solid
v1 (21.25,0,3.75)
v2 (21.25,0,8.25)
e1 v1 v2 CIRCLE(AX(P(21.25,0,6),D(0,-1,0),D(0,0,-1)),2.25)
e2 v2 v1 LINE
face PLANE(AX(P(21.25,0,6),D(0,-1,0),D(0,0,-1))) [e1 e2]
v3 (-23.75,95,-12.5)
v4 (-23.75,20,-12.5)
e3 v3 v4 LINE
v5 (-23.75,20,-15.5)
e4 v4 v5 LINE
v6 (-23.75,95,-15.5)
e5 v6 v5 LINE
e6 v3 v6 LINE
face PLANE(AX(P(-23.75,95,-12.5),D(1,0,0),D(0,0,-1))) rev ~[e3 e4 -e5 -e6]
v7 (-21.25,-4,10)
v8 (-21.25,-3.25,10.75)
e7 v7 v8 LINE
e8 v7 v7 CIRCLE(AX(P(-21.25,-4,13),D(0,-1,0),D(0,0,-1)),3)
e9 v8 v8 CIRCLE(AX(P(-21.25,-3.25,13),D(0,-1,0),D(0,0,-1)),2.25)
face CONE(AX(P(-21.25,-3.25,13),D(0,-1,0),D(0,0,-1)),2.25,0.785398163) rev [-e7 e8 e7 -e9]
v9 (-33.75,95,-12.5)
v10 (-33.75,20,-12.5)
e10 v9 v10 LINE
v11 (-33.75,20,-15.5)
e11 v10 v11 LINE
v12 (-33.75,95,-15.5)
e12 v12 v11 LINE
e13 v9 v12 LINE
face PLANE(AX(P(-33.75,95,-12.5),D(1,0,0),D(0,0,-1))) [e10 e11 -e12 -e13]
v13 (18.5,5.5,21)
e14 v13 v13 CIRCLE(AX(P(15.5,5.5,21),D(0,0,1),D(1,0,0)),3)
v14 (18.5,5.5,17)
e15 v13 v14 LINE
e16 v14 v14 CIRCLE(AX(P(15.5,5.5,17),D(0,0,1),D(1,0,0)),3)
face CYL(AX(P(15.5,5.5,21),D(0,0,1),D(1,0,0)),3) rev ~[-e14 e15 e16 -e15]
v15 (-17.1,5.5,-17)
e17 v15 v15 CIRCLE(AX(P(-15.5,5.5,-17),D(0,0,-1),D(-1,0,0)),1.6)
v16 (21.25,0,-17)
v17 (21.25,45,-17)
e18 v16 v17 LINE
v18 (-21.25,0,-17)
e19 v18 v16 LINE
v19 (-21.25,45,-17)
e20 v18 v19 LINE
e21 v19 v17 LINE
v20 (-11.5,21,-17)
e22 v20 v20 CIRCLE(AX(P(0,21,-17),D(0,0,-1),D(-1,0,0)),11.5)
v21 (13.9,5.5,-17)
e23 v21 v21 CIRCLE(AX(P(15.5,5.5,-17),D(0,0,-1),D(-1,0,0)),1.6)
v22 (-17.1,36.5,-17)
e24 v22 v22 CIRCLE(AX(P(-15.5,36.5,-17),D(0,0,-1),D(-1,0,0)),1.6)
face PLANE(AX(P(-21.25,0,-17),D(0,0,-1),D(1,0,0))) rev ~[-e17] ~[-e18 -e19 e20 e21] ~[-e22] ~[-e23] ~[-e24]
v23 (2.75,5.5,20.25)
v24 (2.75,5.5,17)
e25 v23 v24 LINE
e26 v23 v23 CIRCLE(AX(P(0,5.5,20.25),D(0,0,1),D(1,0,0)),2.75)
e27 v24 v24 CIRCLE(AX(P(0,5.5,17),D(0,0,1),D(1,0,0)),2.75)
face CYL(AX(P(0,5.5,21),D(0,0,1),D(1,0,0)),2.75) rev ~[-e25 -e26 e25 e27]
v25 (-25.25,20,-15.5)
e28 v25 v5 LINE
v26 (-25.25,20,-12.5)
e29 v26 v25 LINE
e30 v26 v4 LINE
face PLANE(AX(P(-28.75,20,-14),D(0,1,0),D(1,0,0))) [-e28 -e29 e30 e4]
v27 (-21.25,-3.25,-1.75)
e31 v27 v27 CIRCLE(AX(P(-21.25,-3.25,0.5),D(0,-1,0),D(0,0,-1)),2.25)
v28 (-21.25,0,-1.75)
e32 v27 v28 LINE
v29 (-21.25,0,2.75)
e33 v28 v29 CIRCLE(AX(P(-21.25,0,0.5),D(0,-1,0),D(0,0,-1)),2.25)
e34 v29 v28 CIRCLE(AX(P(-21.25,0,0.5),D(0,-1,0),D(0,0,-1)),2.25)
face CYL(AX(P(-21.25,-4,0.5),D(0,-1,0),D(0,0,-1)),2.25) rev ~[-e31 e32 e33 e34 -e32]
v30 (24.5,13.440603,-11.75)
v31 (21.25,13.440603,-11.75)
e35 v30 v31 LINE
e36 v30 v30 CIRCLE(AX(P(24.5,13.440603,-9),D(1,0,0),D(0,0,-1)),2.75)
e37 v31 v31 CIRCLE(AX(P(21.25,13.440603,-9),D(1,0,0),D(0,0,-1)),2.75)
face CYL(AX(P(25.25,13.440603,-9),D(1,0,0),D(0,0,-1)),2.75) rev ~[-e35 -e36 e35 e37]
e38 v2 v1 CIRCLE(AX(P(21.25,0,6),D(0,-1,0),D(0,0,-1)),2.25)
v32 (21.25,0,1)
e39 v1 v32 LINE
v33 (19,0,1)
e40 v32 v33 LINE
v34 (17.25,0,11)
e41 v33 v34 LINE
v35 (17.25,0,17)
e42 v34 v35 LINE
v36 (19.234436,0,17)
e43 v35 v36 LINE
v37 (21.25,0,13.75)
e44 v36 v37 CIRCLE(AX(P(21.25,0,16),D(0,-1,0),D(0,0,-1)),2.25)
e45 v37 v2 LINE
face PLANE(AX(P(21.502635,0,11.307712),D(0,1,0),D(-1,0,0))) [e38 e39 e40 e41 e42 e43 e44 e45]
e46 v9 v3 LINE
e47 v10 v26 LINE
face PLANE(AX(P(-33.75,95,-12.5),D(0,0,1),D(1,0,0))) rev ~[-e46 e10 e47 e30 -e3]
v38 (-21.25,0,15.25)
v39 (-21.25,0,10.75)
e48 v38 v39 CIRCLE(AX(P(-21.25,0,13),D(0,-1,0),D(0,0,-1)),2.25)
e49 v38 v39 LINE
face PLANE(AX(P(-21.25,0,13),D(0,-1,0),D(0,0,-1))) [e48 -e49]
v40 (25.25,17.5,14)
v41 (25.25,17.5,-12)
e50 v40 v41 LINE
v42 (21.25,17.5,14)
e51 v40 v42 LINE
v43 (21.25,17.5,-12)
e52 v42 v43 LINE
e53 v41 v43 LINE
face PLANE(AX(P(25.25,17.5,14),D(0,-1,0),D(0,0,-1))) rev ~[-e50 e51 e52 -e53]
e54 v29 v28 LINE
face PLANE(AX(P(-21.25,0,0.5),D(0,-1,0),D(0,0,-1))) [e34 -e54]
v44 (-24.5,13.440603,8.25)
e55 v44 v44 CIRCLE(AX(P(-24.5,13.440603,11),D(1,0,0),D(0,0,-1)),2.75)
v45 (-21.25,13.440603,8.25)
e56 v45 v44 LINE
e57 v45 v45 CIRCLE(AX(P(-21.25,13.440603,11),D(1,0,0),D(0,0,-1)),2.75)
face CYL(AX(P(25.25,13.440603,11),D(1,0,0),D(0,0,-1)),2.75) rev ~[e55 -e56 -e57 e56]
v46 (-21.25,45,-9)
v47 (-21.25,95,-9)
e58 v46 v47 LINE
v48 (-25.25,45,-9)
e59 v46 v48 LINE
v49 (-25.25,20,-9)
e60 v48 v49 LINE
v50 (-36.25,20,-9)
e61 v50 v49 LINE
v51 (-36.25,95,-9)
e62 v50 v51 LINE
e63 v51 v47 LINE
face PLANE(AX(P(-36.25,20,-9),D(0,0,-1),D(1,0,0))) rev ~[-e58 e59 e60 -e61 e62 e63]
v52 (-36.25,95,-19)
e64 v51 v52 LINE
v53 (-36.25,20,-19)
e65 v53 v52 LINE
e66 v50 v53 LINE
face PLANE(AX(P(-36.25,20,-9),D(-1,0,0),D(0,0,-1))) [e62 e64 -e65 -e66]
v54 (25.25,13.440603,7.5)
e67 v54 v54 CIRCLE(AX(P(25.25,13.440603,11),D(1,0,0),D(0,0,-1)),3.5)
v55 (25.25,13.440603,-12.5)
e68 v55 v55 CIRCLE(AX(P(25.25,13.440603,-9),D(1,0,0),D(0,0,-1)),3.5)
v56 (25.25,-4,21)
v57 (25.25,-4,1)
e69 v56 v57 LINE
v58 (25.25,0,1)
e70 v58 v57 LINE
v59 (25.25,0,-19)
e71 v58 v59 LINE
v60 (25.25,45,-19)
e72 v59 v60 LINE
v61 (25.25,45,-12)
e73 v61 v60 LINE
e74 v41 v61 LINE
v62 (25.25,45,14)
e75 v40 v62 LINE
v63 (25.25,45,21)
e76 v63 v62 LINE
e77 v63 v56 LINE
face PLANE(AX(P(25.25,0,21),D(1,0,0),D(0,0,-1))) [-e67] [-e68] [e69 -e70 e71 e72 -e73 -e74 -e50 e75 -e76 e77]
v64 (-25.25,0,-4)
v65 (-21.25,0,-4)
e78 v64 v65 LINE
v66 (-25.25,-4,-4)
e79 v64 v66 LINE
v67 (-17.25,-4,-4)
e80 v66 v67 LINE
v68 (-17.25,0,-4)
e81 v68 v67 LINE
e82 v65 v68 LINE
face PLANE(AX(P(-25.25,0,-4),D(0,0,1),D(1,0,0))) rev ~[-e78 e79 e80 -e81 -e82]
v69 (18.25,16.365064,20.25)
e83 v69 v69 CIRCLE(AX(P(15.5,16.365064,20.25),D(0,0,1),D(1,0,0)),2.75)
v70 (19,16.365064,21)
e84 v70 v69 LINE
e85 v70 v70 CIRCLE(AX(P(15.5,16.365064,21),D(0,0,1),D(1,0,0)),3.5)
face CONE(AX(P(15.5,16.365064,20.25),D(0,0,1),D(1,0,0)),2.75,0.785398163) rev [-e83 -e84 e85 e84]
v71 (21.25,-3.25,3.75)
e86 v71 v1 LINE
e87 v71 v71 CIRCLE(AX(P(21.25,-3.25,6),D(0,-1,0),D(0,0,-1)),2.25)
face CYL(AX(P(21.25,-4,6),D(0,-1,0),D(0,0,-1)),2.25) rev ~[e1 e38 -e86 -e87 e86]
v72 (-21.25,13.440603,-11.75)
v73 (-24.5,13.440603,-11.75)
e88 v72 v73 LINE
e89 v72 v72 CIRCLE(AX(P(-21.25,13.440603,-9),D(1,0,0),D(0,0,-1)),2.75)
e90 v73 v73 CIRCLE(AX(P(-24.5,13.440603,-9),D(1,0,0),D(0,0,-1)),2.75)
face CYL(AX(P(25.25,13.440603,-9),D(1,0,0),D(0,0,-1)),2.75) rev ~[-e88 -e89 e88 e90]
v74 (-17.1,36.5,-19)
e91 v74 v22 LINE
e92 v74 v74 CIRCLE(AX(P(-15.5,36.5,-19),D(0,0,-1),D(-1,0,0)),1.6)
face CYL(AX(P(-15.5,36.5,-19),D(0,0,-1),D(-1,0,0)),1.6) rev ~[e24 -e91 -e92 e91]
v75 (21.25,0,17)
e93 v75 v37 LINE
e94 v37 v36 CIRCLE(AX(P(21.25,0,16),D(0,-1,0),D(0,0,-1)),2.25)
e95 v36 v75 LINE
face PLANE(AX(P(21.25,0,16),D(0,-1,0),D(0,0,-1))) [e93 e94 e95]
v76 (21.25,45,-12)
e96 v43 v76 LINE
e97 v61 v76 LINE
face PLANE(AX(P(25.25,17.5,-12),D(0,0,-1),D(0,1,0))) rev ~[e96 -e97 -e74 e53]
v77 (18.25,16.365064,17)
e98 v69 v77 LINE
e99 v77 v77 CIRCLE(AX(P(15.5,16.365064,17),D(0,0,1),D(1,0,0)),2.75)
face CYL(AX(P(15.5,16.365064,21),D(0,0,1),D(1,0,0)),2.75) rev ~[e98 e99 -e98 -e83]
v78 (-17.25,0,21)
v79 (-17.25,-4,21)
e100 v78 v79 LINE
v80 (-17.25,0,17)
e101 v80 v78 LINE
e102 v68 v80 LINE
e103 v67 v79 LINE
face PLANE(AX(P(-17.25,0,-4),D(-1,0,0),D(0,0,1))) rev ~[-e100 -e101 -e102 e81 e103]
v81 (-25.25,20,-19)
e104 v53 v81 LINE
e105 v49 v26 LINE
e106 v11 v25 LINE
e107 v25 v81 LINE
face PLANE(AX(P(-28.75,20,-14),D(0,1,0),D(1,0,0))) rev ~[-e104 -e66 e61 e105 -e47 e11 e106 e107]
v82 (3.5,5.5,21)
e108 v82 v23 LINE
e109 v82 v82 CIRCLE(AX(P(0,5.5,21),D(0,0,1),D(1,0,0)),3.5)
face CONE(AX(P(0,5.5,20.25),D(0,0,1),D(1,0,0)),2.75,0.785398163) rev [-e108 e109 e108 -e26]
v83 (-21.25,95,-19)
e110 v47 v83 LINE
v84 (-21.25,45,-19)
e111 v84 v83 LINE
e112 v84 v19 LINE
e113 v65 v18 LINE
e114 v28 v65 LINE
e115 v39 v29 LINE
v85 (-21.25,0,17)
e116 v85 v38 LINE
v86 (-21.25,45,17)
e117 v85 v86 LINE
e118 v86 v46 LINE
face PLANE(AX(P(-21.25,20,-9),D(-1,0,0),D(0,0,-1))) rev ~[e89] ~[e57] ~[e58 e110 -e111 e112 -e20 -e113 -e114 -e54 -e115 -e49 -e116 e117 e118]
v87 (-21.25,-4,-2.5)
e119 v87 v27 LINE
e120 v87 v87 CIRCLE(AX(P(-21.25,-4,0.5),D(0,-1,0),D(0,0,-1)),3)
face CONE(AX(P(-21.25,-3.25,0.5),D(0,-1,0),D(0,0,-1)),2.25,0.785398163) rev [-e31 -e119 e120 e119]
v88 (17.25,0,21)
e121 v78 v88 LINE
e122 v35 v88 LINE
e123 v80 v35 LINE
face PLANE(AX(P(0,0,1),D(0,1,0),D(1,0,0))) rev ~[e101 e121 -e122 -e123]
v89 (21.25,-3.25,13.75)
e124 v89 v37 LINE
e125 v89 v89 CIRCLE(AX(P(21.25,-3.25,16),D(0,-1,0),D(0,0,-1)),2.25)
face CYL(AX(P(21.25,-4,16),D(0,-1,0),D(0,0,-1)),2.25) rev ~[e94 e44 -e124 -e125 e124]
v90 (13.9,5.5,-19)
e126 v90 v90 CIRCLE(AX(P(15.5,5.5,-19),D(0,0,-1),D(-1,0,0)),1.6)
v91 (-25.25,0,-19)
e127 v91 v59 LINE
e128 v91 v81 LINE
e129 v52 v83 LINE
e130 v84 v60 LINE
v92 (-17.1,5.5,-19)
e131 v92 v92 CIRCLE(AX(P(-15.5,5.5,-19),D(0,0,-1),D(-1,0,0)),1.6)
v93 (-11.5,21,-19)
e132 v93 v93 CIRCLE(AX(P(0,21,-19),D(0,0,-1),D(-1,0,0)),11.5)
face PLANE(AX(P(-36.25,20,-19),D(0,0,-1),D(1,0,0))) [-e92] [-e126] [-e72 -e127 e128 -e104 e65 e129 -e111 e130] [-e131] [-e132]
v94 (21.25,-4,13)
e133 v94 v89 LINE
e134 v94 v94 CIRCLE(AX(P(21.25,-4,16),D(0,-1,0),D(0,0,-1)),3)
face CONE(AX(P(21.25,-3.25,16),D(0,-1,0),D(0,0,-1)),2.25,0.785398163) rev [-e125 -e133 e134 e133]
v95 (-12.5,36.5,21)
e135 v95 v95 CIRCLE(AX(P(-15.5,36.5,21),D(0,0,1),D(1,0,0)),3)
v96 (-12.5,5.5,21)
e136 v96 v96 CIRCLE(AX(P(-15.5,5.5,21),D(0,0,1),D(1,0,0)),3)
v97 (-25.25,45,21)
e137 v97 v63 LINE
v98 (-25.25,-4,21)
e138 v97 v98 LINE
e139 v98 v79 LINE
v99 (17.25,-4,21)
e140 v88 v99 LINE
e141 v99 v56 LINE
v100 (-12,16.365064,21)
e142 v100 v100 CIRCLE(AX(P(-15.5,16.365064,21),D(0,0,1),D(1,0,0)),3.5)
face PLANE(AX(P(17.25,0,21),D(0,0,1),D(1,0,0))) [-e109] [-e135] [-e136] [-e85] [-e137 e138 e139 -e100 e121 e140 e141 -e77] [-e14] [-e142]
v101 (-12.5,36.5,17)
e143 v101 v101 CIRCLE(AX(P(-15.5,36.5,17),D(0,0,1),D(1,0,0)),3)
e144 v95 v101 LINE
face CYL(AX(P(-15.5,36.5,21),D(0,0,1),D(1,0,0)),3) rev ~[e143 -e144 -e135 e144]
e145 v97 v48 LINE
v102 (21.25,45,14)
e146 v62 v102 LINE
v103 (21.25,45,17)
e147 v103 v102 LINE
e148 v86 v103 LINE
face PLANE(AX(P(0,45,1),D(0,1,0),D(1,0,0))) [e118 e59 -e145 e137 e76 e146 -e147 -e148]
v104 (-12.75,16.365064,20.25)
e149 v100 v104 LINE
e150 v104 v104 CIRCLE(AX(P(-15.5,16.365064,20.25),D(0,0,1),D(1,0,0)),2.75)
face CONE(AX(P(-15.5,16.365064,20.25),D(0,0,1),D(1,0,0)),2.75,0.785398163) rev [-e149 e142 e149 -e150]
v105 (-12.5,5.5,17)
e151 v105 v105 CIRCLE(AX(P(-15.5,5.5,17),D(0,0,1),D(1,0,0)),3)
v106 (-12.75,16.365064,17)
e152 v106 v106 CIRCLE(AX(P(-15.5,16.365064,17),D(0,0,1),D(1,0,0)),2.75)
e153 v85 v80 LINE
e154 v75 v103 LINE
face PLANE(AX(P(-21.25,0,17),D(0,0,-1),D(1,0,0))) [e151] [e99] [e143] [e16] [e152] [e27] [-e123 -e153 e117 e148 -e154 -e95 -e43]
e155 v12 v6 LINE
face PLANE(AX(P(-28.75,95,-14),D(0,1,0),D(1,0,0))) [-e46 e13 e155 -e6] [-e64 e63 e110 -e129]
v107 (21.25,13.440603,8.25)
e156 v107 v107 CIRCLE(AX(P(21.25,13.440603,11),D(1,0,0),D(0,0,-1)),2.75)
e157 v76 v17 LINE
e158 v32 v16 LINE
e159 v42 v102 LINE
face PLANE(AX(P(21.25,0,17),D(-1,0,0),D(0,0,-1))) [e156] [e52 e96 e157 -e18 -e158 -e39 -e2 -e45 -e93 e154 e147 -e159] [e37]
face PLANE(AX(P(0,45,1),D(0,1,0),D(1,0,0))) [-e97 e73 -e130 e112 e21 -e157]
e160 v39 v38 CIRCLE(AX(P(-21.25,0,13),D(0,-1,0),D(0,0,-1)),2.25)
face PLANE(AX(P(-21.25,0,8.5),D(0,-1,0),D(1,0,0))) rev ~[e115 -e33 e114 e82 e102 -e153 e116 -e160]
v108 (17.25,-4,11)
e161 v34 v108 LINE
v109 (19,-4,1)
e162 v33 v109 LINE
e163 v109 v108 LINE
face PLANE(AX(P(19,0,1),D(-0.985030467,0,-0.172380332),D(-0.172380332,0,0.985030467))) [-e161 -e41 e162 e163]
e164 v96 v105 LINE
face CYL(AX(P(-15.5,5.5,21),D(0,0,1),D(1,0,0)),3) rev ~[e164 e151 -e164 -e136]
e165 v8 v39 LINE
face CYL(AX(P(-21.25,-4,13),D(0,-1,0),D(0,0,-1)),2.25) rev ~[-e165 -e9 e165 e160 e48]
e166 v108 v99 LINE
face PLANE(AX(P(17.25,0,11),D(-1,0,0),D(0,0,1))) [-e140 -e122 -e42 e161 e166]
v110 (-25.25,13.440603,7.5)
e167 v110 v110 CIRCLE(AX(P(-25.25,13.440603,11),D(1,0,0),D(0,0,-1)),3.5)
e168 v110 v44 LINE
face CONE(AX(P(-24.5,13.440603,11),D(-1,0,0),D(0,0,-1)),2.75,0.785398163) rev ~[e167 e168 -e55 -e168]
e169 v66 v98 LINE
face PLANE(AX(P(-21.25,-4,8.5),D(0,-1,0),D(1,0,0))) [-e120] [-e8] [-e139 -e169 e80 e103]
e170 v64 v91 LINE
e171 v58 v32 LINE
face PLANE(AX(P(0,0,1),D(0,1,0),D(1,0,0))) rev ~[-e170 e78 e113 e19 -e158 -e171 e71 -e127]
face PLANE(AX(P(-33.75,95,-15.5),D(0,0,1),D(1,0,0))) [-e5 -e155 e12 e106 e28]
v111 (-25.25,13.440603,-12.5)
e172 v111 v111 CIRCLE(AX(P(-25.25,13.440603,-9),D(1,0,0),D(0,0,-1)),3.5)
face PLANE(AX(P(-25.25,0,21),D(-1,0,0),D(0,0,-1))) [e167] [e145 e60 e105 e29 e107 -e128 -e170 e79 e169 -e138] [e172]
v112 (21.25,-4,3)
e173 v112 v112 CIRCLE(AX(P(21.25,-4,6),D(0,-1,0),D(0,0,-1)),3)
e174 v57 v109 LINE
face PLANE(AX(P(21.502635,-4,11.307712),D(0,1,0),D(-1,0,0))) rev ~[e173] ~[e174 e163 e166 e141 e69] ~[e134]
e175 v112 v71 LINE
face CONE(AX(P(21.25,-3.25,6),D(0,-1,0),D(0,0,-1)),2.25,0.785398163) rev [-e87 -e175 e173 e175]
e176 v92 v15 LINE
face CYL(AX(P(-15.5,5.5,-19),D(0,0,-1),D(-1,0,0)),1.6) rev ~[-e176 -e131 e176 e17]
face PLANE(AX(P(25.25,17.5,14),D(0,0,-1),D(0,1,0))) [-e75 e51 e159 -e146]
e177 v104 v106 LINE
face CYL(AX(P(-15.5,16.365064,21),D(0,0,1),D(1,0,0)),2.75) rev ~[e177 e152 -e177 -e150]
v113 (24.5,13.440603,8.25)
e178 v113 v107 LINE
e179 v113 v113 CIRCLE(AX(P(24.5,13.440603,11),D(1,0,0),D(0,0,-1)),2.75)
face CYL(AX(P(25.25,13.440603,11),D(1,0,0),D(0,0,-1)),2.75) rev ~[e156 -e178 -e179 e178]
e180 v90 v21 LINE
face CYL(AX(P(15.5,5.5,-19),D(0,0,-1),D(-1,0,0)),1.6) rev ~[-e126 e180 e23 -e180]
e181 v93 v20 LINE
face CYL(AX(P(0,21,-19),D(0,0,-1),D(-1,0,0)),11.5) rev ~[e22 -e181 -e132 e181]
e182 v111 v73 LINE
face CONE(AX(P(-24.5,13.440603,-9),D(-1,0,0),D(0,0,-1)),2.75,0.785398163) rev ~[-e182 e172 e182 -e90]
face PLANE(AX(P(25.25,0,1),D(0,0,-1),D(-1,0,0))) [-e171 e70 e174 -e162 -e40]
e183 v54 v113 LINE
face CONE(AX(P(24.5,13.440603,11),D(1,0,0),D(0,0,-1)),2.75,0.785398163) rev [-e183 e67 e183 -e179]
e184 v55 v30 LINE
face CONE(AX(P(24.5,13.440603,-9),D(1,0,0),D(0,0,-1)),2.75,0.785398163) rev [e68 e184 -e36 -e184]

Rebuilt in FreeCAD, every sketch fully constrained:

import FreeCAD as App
import Part
import Sketcher
from FreeCAD import Vector


def edges_at(feature, points):
    """Names of the edges that pass closest to the given points."""
    edges = feature.Shape.Edges
    near = lambda p: min(range(len(edges)), key=lambda i: edges[i].distToShape(Part.Vertex(*p))[0])
    return sorted({f"Edge{near(p) + 1}" for p in points})

doc = App.newDocument("Part")
body = doc.addObject("PartDesign::Body", "Body")

# Sketch on XZ plane
sketch1 = doc.addObject("Sketcher::SketchObject", "Sketch")
body.addObject(sketch1)
sketch1.AttachmentSupport = (doc.XZ_Plane, [""])
sketch1.MapMode = "FlatFace"
sketch1.addGeometry(Part.LineSegment(Vector(-25, -19, 0), Vector(-25, 21, 0)), False)
sketch1.addGeometry(Part.LineSegment(Vector(-25, 21, 0), Vector(25, 21, 0)), False)
sketch1.addGeometry(Part.LineSegment(Vector(25, 21, 0), Vector(25, -19, 0)), False)
sketch1.addGeometry(Part.LineSegment(Vector(25, -19, 0), Vector(-25, -19, 0)), False)
sketch1.addGeometry(Part.LineSegment(Vector(21, 17, 0), Vector(-21, 17, 0)), False)
sketch1.addGeometry(Part.LineSegment(Vector(-21, 17, 0), Vector(-21, -17, 0)), False)
sketch1.addGeometry(Part.LineSegment(Vector(-21, -17, 0), Vector(21, -17, 0)), False)
sketch1.addGeometry(Part.LineSegment(Vector(21, -17, 0), Vector(21, 17, 0)), False)
sketch1.addConstraint(Sketcher.Constraint("Coincident", 0, 2, 1, 1))
sketch1.addConstraint(Sketcher.Constraint("Coincident", 1, 2, 2, 1))
sketch1.addConstraint(Sketcher.Constraint("Coincident", 2, 2, 3, 1))
sketch1.addConstraint(Sketcher.Constraint("Coincident", 3, 2, 0, 1))
sketch1.addConstraint(Sketcher.Constraint("Coincident", 4, 2, 5, 1))
sketch1.addConstraint(Sketcher.Constraint("Coincident", 5, 2, 6, 1))
sketch1.addConstraint(Sketcher.Constraint("Coincident", 6, 2, 7, 1))
sketch1.addConstraint(Sketcher.Constraint("Coincident", 7, 2, 4, 1))
sketch1.addConstraint(Sketcher.Constraint("Vertical", 0))
sketch1.addConstraint(Sketcher.Constraint("Horizontal", 1))
sketch1.addConstraint(Sketcher.Constraint("Vertical", 2))
sketch1.addConstraint(Sketcher.Constraint("Horizontal", 3))
sketch1.addConstraint(Sketcher.Constraint("Horizontal", 4))
sketch1.addConstraint(Sketcher.Constraint("Vertical", 5))
sketch1.addConstraint(Sketcher.Constraint("Horizontal", 6))
sketch1.addConstraint(Sketcher.Constraint("Vertical", 7))
sketch1.addConstraint(Sketcher.Constraint("Symmetric", 4, 2, 6, 2, -1, 1))
sketch1.addConstraint(Sketcher.Constraint("DistanceY", 0, 1, 0, 2, 40.0))
sketch1.addConstraint(Sketcher.Constraint("DistanceY", 5, 2, 5, 1, 34.0))
sketch1.addConstraint(Sketcher.Constraint("DistanceX", 1, 1, 1, 2, 50.5))
sketch1.addConstraint(Sketcher.Constraint("DistanceX", 4, 2, 4, 1, 42.5))
sketch1.addConstraint(Sketcher.Constraint("DistanceY", -1, 1, 0, 2, 21.0))
sketch1.addConstraint(Sketcher.Constraint("DistanceX", 0, 2, 4, 2, 4.0))
pad1 = doc.addObject("PartDesign::Pad", "Pad")
body.addObject(pad1)
pad1.Profile = sketch1
pad1.Length = 45
pad1.Reversed = True

# Sketch on YZ plane
sketch2 = doc.addObject("Sketcher::SketchObject", "Sketch001")
body.addObject(sketch2)
sketch2.AttachmentSupport = (doc.YZ_Plane, [""])
sketch2.MapMode = "FlatFace"
sketch2.AttachmentOffset = App.Placement(Vector(0, 0, 25.25), App.Rotation())
sketch2.addGeometry(Part.LineSegment(Vector(45, 14, 0), Vector(18, 14, 0)), False)
sketch2.addGeometry(Part.LineSegment(Vector(18, 14, 0), Vector(18, -12, 0)), False)
sketch2.addGeometry(Part.LineSegment(Vector(18, -12, 0), Vector(45, -12, 0)), False)
sketch2.addGeometry(Part.LineSegment(Vector(45, -12, 0), Vector(45, 14, 0)), False)
sketch2.addConstraint(Sketcher.Constraint("Coincident", 0, 2, 1, 1))
sketch2.addConstraint(Sketcher.Constraint("Coincident", 1, 2, 2, 1))
sketch2.addConstraint(Sketcher.Constraint("Coincident", 2, 2, 3, 1))
sketch2.addConstraint(Sketcher.Constraint("Coincident", 3, 2, 0, 1))
sketch2.addConstraint(Sketcher.Constraint("Horizontal", 0))
sketch2.addConstraint(Sketcher.Constraint("Vertical", 1))
sketch2.addConstraint(Sketcher.Constraint("Horizontal", 2))
sketch2.addConstraint(Sketcher.Constraint("Vertical", 3))
sketch2.addConstraint(Sketcher.Constraint("DistanceY", 1, 2, 1, 1, 26.0))
sketch2.addConstraint(Sketcher.Constraint("DistanceX", 0, 2, 0, 1, 27.5))
sketch2.addConstraint(Sketcher.Constraint("DistanceY", -1, 1, 0, 2, 14.0))
sketch2.addConstraint(Sketcher.Constraint("DistanceX", -1, 1, 2, 2, 45.0))
pocket1 = doc.addObject("PartDesign::Pocket", "Pocket")
body.addObject(pocket1)
pocket1.Profile = sketch2
pocket1.Type = "UpToFirst"

# Sketch on XY plane
sketch3 = doc.addObject("Sketcher::SketchObject", "Sketch002")
body.addObject(sketch3)
sketch3.AttachmentSupport = (doc.XY_Plane, [""])
sketch3.MapMode = "FlatFace"
sketch3.AttachmentOffset = App.Placement(Vector(0, 0, -19), App.Rotation())
sketch3.addGeometry(Part.Circle(Vector(0, 21, 0), Vector(0, 0, 1), 12), False)
sketch3.addConstraint(Sketcher.Constraint("PointOnObject", 0, 3, -2))
sketch3.addConstraint(Sketcher.Constraint("Diameter", 0, 23.0))
sketch3.addConstraint(Sketcher.Constraint("DistanceY", -1, 1, 0, 3, 21.0))
pocket2 = doc.addObject("PartDesign::Pocket", "Pocket001")
body.addObject(pocket2)
pocket2.Profile = sketch3
pocket2.Type = "UpToFirst"
pocket2.Reversed = True

# Sketch on XY plane
sketch4 = doc.addObject("Sketcher::SketchObject", "Sketch003")
body.addObject(sketch4)
sketch4.AttachmentSupport = (doc.XY_Plane, [""])
sketch4.MapMode = "FlatFace"
sketch4.AttachmentOffset = App.Placement(Vector(0, 0, -19), App.Rotation())
sketch4.addGeometry(Part.Circle(Vector(15.5, 5.5, 0), Vector(0, 0, 1), 1.6), False)
sketch4.addConstraint(Sketcher.Constraint("Diameter", 0, 3.2))
sketch4.addConstraint(Sketcher.Constraint("DistanceX", -1, 1, 0, 3, 15.5))
sketch4.addConstraint(Sketcher.Constraint("DistanceY", -1, 1, 0, 3, 5.5))
pocket3 = doc.addObject("PartDesign::Pocket", "Pocket002")
body.addObject(pocket3)
pocket3.Profile = sketch4
pocket3.Type = "UpToFirst"
pocket3.Reversed = True

# Sketch on XY plane
sketch5 = doc.addObject("Sketcher::SketchObject", "Sketch004")
body.addObject(sketch5)
sketch5.AttachmentSupport = (doc.XY_Plane, [""])
sketch5.MapMode = "FlatFace"
sketch5.AttachmentOffset = App.Placement(Vector(0, 0, -19), App.Rotation())
sketch5.addGeometry(Part.Circle(Vector(-15.5, 5.5, 0), Vector(0, 0, 1), 1.6), False)
sketch5.addConstraint(Sketcher.Constraint("Diameter", 0, 3.2))
sketch5.addConstraint(Sketcher.Constraint("DistanceX", 0, 3, -1, 1, 15.5))
sketch5.addConstraint(Sketcher.Constraint("DistanceY", -1, 1, 0, 3, 5.5))
pocket4 = doc.addObject("PartDesign::Pocket", "Pocket003")
body.addObject(pocket4)
pocket4.Profile = sketch5
pocket4.Type = "UpToFirst"
pocket4.Reversed = True

# Sketch on XY plane
sketch6 = doc.addObject("Sketcher::SketchObject", "Sketch005")
body.addObject(sketch6)
sketch6.AttachmentSupport = (doc.XY_Plane, [""])
sketch6.MapMode = "FlatFace"
sketch6.AttachmentOffset = App.Placement(Vector(0, 0, -19), App.Rotation())
sketch6.addGeometry(Part.Circle(Vector(-15.5, 36.5, 0), Vector(0, 0, 1), 1.6), False)
sketch6.addConstraint(Sketcher.Constraint("Diameter", 0, 3.2))
sketch6.addConstraint(Sketcher.Constraint("DistanceX", 0, 3, -1, 1, 15.5))
sketch6.addConstraint(Sketcher.Constraint("DistanceY", -1, 1, 0, 3, 36.5))
pocket5 = doc.addObject("PartDesign::Pocket", "Pocket004")
body.addObject(pocket5)
pocket5.Profile = sketch6
pocket5.Type = "UpToFirst"
pocket5.Reversed = True

# Sketch on XY plane
sketch7 = doc.addObject("Sketcher::SketchObject", "Sketch006")
body.addObject(sketch7)
sketch7.AttachmentSupport = (doc.XY_Plane, [""])
sketch7.MapMode = "FlatFace"
sketch7.AttachmentOffset = App.Placement(Vector(0, 0, 21), App.Rotation())
sketch7.addGeometry(Part.Circle(Vector(-15.5, 36.5, 0), Vector(0, 0, 1), 3), False)
sketch7.addConstraint(Sketcher.Constraint("Diameter", 0, 6.0))
sketch7.addConstraint(Sketcher.Constraint("DistanceX", 0, 3, -1, 1, 15.5))
sketch7.addConstraint(Sketcher.Constraint("DistanceY", -1, 1, 0, 3, 36.5))
pocket6 = doc.addObject("PartDesign::Pocket", "Pocket005")
body.addObject(pocket6)
pocket6.Profile = sketch7
pocket6.Type = "UpToFirst"

# Sketch on XY plane
sketch8 = doc.addObject("Sketcher::SketchObject", "Sketch007")
body.addObject(sketch8)
sketch8.AttachmentSupport = (doc.XY_Plane, [""])
sketch8.MapMode = "FlatFace"
sketch8.AttachmentOffset = App.Placement(Vector(0, 0, 21), App.Rotation())
sketch8.addGeometry(Part.Circle(Vector(-15.5, 5.5, 0), Vector(0, 0, 1), 3), False)
sketch8.addConstraint(Sketcher.Constraint("Diameter", 0, 6.0))
sketch8.addConstraint(Sketcher.Constraint("DistanceX", 0, 3, -1, 1, 15.5))
sketch8.addConstraint(Sketcher.Constraint("DistanceY", -1, 1, 0, 3, 5.5))
pocket7 = doc.addObject("PartDesign::Pocket", "Pocket006")
body.addObject(pocket7)
pocket7.Profile = sketch8
pocket7.Type = "UpToFirst"

# Sketch on XY plane
sketch9 = doc.addObject("Sketcher::SketchObject", "Sketch008")
body.addObject(sketch9)
sketch9.AttachmentSupport = (doc.XY_Plane, [""])
sketch9.MapMode = "FlatFace"
sketch9.AttachmentOffset = App.Placement(Vector(0, 0, 21), App.Rotation())
sketch9.addGeometry(Part.Circle(Vector(15.5, 5.5, 0), Vector(0, 0, 1), 3), False)
sketch9.addConstraint(Sketcher.Constraint("Diameter", 0, 6.0))
sketch9.addConstraint(Sketcher.Constraint("DistanceX", -1, 1, 0, 3, 15.5))
sketch9.addConstraint(Sketcher.Constraint("DistanceY", -1, 1, 0, 3, 5.5))
pocket8 = doc.addObject("PartDesign::Pocket", "Pocket007")
body.addObject(pocket8)
pocket8.Profile = sketch9
pocket8.Type = "UpToFirst"

# Sketch on XY plane
sketch10 = doc.addObject("Sketcher::SketchObject", "Sketch009")
body.addObject(sketch10)
sketch10.AttachmentSupport = (doc.XY_Plane, [""])
sketch10.MapMode = "FlatFace"
sketch10.AttachmentOffset = App.Placement(Vector(0, 0, 21), App.Rotation())
sketch10.addGeometry(Part.Circle(Vector(-15.5, 16.4, 0), Vector(0, 0, 1), 2.8), False)
sketch10.addConstraint(Sketcher.Constraint("Diameter", 0, 5.5))
sketch10.addConstraint(Sketcher.Constraint("DistanceX", 0, 3, -1, 1, 15.5))
sketch10.addConstraint(Sketcher.Constraint("DistanceY", -1, 1, 0, 3, 16.365064))
pocket9 = doc.addObject("PartDesign::Pocket", "Pocket008")
body.addObject(pocket9)
pocket9.Profile = sketch10
pocket9.Type = "UpToFirst"

# Sketch on XY plane
sketch11 = doc.addObject("Sketcher::SketchObject", "Sketch010")
body.addObject(sketch11)
sketch11.AttachmentSupport = (doc.XY_Plane, [""])
sketch11.MapMode = "FlatFace"
sketch11.AttachmentOffset = App.Placement(Vector(0, 0, 21), App.Rotation())
sketch11.addGeometry(Part.Circle(Vector(0, 5.5, 0), Vector(0, 0, 1), 2.8), False)
sketch11.addConstraint(Sketcher.Constraint("PointOnObject", 0, 3, -2))
sketch11.addConstraint(Sketcher.Constraint("Diameter", 0, 5.5))
sketch11.addConstraint(Sketcher.Constraint("DistanceY", -1, 1, 0, 3, 5.5))
pocket10 = doc.addObject("PartDesign::Pocket", "Pocket009")
body.addObject(pocket10)
pocket10.Profile = sketch11
pocket10.Type = "UpToFirst"

# Sketch on XY plane
sketch12 = doc.addObject("Sketcher::SketchObject", "Sketch011")
body.addObject(sketch12)
sketch12.AttachmentSupport = (doc.XY_Plane, [""])
sketch12.MapMode = "FlatFace"
sketch12.AttachmentOffset = App.Placement(Vector(0, 0, 21), App.Rotation())
sketch12.addGeometry(Part.Circle(Vector(15.5, 16.4, 0), Vector(0, 0, 1), 2.8), False)
sketch12.addConstraint(Sketcher.Constraint("Diameter", 0, 5.5))
sketch12.addConstraint(Sketcher.Constraint("DistanceX", -1, 1, 0, 3, 15.5))
sketch12.addConstraint(Sketcher.Constraint("DistanceY", -1, 1, 0, 3, 16.365064))
pocket11 = doc.addObject("PartDesign::Pocket", "Pocket010")
body.addObject(pocket11)
pocket11.Profile = sketch12
pocket11.Type = "UpToFirst"

# Sketch on YZ plane
sketch13 = doc.addObject("Sketcher::SketchObject", "Sketch012")
body.addObject(sketch13)
sketch13.AttachmentSupport = (doc.YZ_Plane, [""])
sketch13.MapMode = "FlatFace"
sketch13.AttachmentOffset = App.Placement(Vector(0, 0, 25.25), App.Rotation())
sketch13.addGeometry(Part.Circle(Vector(13.4, 11, 0), Vector(0, 0, 1), 2.8), False)
sketch13.addGeometry(Part.Circle(Vector(13.4, -9, 0), Vector(0, 0, 1), 2.8), False)
sketch13.addConstraint(Sketcher.Constraint("Equal", 0, 1))
sketch13.addConstraint(Sketcher.Constraint("Vertical", 0, 3, 1, 3))
sketch13.addConstraint(Sketcher.Constraint("Diameter", 0, 5.5))
sketch13.addConstraint(Sketcher.Constraint("DistanceY", -1, 1, 0, 3, 11.0))
sketch13.addConstraint(Sketcher.Constraint("DistanceY", 1, 3, -1, 1, 9.0))
sketch13.addConstraint(Sketcher.Constraint("DistanceX", -1, 1, 0, 3, 13.440603))
pocket12 = doc.addObject("PartDesign::Pocket", "Pocket011")
body.addObject(pocket12)
pocket12.Profile = sketch13
pocket12.Type = "ThroughAll"

# Sketch on XZ plane
sketch14 = doc.addObject("Sketcher::SketchObject", "Sketch013")
body.addObject(sketch14)
sketch14.AttachmentSupport = (doc.XZ_Plane, [""])
sketch14.MapMode = "FlatFace"
sketch14.addGeometry(Part.LineSegment(Vector(17, 11, 0), Vector(19, 1, 0)), False)
sketch14.addGeometry(Part.LineSegment(Vector(19, 1, 0), Vector(25, 1, 0)), False)
sketch14.addGeometry(Part.LineSegment(Vector(25, 1, 0), Vector(25, 21, 0)), False)
sketch14.addGeometry(Part.LineSegment(Vector(25, 21, 0), Vector(17, 21, 0)), False)
sketch14.addGeometry(Part.LineSegment(Vector(17, 21, 0), Vector(17, 11, 0)), False)
sketch14.addGeometry(Part.LineSegment(Vector(-25, 21, 0), Vector(-25, -4, 0)), False)
sketch14.addGeometry(Part.LineSegment(Vector(-25, -4, 0), Vector(-17, -4, 0)), False)
sketch14.addGeometry(Part.LineSegment(Vector(-17, -4, 0), Vector(-17, 21, 0)), False)
sketch14.addGeometry(Part.LineSegment(Vector(-17, 21, 0), Vector(-25, 21, 0)), False)
sketch14.addConstraint(Sketcher.Constraint("Coincident", 0, 2, 1, 1))
sketch14.addConstraint(Sketcher.Constraint("Coincident", 1, 2, 2, 1))
sketch14.addConstraint(Sketcher.Constraint("Coincident", 2, 2, 3, 1))
sketch14.addConstraint(Sketcher.Constraint("Coincident", 3, 2, 4, 1))
sketch14.addConstraint(Sketcher.Constraint("Coincident", 4, 2, 0, 1))
sketch14.addConstraint(Sketcher.Constraint("Coincident", 5, 2, 6, 1))
sketch14.addConstraint(Sketcher.Constraint("Coincident", 6, 2, 7, 1))
sketch14.addConstraint(Sketcher.Constraint("Coincident", 7, 2, 8, 1))
sketch14.addConstraint(Sketcher.Constraint("Coincident", 8, 2, 5, 1))
sketch14.addConstraint(Sketcher.Constraint("Horizontal", 1))
sketch14.addConstraint(Sketcher.Constraint("Vertical", 2))
sketch14.addConstraint(Sketcher.Constraint("Horizontal", 3))
sketch14.addConstraint(Sketcher.Constraint("Vertical", 4))
sketch14.addConstraint(Sketcher.Constraint("Vertical", 5))
sketch14.addConstraint(Sketcher.Constraint("Horizontal", 6))
sketch14.addConstraint(Sketcher.Constraint("Vertical", 7))
sketch14.addConstraint(Sketcher.Constraint("Horizontal", 8))
sketch14.addConstraint(Sketcher.Constraint("Symmetric", 3, 2, 7, 2, -2))
sketch14.addConstraint(Sketcher.Constraint("Equal", 3, 6))
sketch14.addConstraint(Sketcher.Constraint("DistanceX", 3, 2, 3, 1, 8.0))
sketch14.addConstraint(Sketcher.Constraint("DistanceY", 2, 1, 2, 2, 20.0))
sketch14.addConstraint(Sketcher.Constraint("DistanceY", 4, 2, 4, 1, 10.0))
sketch14.addConstraint(Sketcher.Constraint("DistanceY", 5, 2, 5, 1, 25.0))
sketch14.addConstraint(Sketcher.Constraint("DistanceX", -1, 1, 0, 2, 19.0))
sketch14.addConstraint(Sketcher.Constraint("DistanceY", -1, 1, 0, 2, 1.0))
sketch14.addConstraint(Sketcher.Constraint("DistanceX", 1, 1, 1, 2, 6.25))
pad2 = doc.addObject("PartDesign::Pad", "Pad001")
body.addObject(pad2)
pad2.Profile = sketch14
pad2.Length = 4

# Sketch on XZ plane
sketch15 = doc.addObject("Sketcher::SketchObject", "Sketch014")
body.addObject(sketch15)
sketch15.AttachmentSupport = (doc.XZ_Plane, [""])
sketch15.MapMode = "FlatFace"
sketch15.AttachmentOffset = App.Placement(Vector(0, 0, 4), App.Rotation())
sketch15.addGeometry(Part.Circle(Vector(-21.2, 13, 0), Vector(0, 0, 1), 2.2), False)
sketch15.addGeometry(Part.Circle(Vector(-21.2, 0.5, 0), Vector(0, 0, 1), 2.2), False)
sketch15.addGeometry(Part.Circle(Vector(21.2, 6, 0), Vector(0, 0, 1), 2.2), False)
sketch15.addGeometry(Part.Circle(Vector(21.2, 16, 0), Vector(0, 0, 1), 2.2), False)
sketch15.addConstraint(Sketcher.Constraint("Equal", 0, 1))
sketch15.addConstraint(Sketcher.Constraint("Equal", 1, 2))
sketch15.addConstraint(Sketcher.Constraint("Equal", 2, 3))
sketch15.addConstraint(Sketcher.Constraint("Vertical", 0, 3, 1, 3))
sketch15.addConstraint(Sketcher.Constraint("Vertical", 2, 3, 3, 3))
sketch15.addConstraint(Sketcher.Constraint("Diameter", 0, 4.5))
sketch15.addConstraint(Sketcher.Constraint("DistanceY", -1, 1, 0, 3, 13.0))
sketch15.addConstraint(Sketcher.Constraint("DistanceY", -1, 1, 2, 3, 6.0))
sketch15.addConstraint(Sketcher.Constraint("DistanceY", -1, 1, 3, 3, 16.0))
sketch15.addConstraint(Sketcher.Constraint("DistanceY", -1, 1, 1, 3, 0.5))
sketch15.addConstraint(Sketcher.Constraint("DistanceX", 1, 3, 2, 3, 42.5))
sketch15.addConstraint(Sketcher.Constraint("DistanceX", 0, 3, -1, 1, 21.25))
pocket13 = doc.addObject("PartDesign::Pocket", "Pocket012")
body.addObject(pocket13)
pocket13.Profile = sketch15
pocket13.Length = 4
doc.recompute()

chamfer = doc.addObject("PartDesign::Chamfer", "Chamfer")
body.addObject(chamfer)
chamfer.Base = (pocket13, edges_at(pocket13, [
    (21.25, -4, 18.25),
    (21.25, -4, 8.25),
    (-21.25, -4, 2.75),
    (-21.25, -4, 15.25),
    (-18.25, 16.365, 21),
    (-2.75, 5.5, 21),
    (12.75, 16.365, 21),
    (-25.25, 13.441, 13.75),
    (25.25, 13.441, 13.75),
    (-25.25, 13.441, -6.25),
    (25.25, 13.441, -6.25),
]))
chamfer.Size = 0.75

# Sketch on XZ plane
sketch16 = doc.addObject("Sketcher::SketchObject", "Sketch015")
body.addObject(sketch16)
sketch16.AttachmentSupport = (doc.XZ_Plane, [""])
sketch16.MapMode = "FlatFace"
sketch16.AttachmentOffset = App.Placement(Vector(0, 0, -45), App.Rotation())
sketch16.addGeometry(Part.LineSegment(Vector(-36, -19, 0), Vector(-36, -9, 0)), False)
sketch16.addGeometry(Part.LineSegment(Vector(-36, -9, 0), Vector(-21, -9, 0)), False)
sketch16.addGeometry(Part.LineSegment(Vector(-21, -9, 0), Vector(-21, -19, 0)), False)
sketch16.addGeometry(Part.LineSegment(Vector(-21, -19, 0), Vector(-36, -19, 0)), False)
sketch16.addConstraint(Sketcher.Constraint("Coincident", 0, 2, 1, 1))
sketch16.addConstraint(Sketcher.Constraint("Coincident", 1, 2, 2, 1))
sketch16.addConstraint(Sketcher.Constraint("Coincident", 2, 2, 3, 1))
sketch16.addConstraint(Sketcher.Constraint("Coincident", 3, 2, 0, 1))
sketch16.addConstraint(Sketcher.Constraint("Vertical", 0))
sketch16.addConstraint(Sketcher.Constraint("Horizontal", 1))
sketch16.addConstraint(Sketcher.Constraint("Vertical", 2))
sketch16.addConstraint(Sketcher.Constraint("Horizontal", 3))
sketch16.addConstraint(Sketcher.Constraint("DistanceX", 1, 1, 1, 2, 15.0))
sketch16.addConstraint(Sketcher.Constraint("DistanceY", 0, 1, 0, 2, 10.0))
sketch16.addConstraint(Sketcher.Constraint("DistanceY", 0, 2, -1, 1, 9.0))
sketch16.addConstraint(Sketcher.Constraint("DistanceX", 0, 2, -1, 1, 36.25))
pad3 = doc.addObject("PartDesign::Pad", "Pad002")
body.addObject(pad3)
pad3.Profile = sketch16
pad3.Type = "TwoLengths"
pad3.Length = 50
pad3.Length2 = 25
pad3.Reversed = True

# Sketch on XZ plane
sketch17 = doc.addObject("Sketcher::SketchObject", "Sketch016")
body.addObject(sketch17)
sketch17.AttachmentSupport = (doc.XZ_Plane, [""])
sketch17.MapMode = "FlatFace"
sketch17.AttachmentOffset = App.Placement(Vector(0, 0, -95), App.Rotation())
sketch17.addGeometry(Part.LineSegment(Vector(-33.8, -15.5, 0), Vector(-33.8, -12.5, 0)), False)
sketch17.addGeometry(Part.LineSegment(Vector(-33.8, -12.5, 0), Vector(-23.8, -12.5, 0)), False)
sketch17.addGeometry(Part.LineSegment(Vector(-23.8, -12.5, 0), Vector(-23.8, -15.5, 0)), False)
sketch17.addGeometry(Part.LineSegment(Vector(-23.8, -15.5, 0), Vector(-33.8, -15.5, 0)), False)
sketch17.addConstraint(Sketcher.Constraint("Coincident", 0, 2, 1, 1))
sketch17.addConstraint(Sketcher.Constraint("Coincident", 1, 2, 2, 1))
sketch17.addConstraint(Sketcher.Constraint("Coincident", 2, 2, 3, 1))
sketch17.addConstraint(Sketcher.Constraint("Coincident", 3, 2, 0, 1))
sketch17.addConstraint(Sketcher.Constraint("Vertical", 0))
sketch17.addConstraint(Sketcher.Constraint("Horizontal", 1))
sketch17.addConstraint(Sketcher.Constraint("Vertical", 2))
sketch17.addConstraint(Sketcher.Constraint("Horizontal", 3))
sketch17.addConstraint(Sketcher.Constraint("DistanceX", 1, 1, 1, 2, 10.0))
sketch17.addConstraint(Sketcher.Constraint("DistanceY", 0, 1, 0, 2, 3.0))
sketch17.addConstraint(Sketcher.Constraint("DistanceY", 0, 2, -1, 1, 12.5))
sketch17.addConstraint(Sketcher.Constraint("DistanceX", 0, 2, -1, 1, 33.75))
pocket14 = doc.addObject("PartDesign::Pocket", "Pocket013")
body.addObject(pocket14)
pocket14.Profile = sketch17
pocket14.Length = 75
pocket14.Reversed = True

doc.recompute()
